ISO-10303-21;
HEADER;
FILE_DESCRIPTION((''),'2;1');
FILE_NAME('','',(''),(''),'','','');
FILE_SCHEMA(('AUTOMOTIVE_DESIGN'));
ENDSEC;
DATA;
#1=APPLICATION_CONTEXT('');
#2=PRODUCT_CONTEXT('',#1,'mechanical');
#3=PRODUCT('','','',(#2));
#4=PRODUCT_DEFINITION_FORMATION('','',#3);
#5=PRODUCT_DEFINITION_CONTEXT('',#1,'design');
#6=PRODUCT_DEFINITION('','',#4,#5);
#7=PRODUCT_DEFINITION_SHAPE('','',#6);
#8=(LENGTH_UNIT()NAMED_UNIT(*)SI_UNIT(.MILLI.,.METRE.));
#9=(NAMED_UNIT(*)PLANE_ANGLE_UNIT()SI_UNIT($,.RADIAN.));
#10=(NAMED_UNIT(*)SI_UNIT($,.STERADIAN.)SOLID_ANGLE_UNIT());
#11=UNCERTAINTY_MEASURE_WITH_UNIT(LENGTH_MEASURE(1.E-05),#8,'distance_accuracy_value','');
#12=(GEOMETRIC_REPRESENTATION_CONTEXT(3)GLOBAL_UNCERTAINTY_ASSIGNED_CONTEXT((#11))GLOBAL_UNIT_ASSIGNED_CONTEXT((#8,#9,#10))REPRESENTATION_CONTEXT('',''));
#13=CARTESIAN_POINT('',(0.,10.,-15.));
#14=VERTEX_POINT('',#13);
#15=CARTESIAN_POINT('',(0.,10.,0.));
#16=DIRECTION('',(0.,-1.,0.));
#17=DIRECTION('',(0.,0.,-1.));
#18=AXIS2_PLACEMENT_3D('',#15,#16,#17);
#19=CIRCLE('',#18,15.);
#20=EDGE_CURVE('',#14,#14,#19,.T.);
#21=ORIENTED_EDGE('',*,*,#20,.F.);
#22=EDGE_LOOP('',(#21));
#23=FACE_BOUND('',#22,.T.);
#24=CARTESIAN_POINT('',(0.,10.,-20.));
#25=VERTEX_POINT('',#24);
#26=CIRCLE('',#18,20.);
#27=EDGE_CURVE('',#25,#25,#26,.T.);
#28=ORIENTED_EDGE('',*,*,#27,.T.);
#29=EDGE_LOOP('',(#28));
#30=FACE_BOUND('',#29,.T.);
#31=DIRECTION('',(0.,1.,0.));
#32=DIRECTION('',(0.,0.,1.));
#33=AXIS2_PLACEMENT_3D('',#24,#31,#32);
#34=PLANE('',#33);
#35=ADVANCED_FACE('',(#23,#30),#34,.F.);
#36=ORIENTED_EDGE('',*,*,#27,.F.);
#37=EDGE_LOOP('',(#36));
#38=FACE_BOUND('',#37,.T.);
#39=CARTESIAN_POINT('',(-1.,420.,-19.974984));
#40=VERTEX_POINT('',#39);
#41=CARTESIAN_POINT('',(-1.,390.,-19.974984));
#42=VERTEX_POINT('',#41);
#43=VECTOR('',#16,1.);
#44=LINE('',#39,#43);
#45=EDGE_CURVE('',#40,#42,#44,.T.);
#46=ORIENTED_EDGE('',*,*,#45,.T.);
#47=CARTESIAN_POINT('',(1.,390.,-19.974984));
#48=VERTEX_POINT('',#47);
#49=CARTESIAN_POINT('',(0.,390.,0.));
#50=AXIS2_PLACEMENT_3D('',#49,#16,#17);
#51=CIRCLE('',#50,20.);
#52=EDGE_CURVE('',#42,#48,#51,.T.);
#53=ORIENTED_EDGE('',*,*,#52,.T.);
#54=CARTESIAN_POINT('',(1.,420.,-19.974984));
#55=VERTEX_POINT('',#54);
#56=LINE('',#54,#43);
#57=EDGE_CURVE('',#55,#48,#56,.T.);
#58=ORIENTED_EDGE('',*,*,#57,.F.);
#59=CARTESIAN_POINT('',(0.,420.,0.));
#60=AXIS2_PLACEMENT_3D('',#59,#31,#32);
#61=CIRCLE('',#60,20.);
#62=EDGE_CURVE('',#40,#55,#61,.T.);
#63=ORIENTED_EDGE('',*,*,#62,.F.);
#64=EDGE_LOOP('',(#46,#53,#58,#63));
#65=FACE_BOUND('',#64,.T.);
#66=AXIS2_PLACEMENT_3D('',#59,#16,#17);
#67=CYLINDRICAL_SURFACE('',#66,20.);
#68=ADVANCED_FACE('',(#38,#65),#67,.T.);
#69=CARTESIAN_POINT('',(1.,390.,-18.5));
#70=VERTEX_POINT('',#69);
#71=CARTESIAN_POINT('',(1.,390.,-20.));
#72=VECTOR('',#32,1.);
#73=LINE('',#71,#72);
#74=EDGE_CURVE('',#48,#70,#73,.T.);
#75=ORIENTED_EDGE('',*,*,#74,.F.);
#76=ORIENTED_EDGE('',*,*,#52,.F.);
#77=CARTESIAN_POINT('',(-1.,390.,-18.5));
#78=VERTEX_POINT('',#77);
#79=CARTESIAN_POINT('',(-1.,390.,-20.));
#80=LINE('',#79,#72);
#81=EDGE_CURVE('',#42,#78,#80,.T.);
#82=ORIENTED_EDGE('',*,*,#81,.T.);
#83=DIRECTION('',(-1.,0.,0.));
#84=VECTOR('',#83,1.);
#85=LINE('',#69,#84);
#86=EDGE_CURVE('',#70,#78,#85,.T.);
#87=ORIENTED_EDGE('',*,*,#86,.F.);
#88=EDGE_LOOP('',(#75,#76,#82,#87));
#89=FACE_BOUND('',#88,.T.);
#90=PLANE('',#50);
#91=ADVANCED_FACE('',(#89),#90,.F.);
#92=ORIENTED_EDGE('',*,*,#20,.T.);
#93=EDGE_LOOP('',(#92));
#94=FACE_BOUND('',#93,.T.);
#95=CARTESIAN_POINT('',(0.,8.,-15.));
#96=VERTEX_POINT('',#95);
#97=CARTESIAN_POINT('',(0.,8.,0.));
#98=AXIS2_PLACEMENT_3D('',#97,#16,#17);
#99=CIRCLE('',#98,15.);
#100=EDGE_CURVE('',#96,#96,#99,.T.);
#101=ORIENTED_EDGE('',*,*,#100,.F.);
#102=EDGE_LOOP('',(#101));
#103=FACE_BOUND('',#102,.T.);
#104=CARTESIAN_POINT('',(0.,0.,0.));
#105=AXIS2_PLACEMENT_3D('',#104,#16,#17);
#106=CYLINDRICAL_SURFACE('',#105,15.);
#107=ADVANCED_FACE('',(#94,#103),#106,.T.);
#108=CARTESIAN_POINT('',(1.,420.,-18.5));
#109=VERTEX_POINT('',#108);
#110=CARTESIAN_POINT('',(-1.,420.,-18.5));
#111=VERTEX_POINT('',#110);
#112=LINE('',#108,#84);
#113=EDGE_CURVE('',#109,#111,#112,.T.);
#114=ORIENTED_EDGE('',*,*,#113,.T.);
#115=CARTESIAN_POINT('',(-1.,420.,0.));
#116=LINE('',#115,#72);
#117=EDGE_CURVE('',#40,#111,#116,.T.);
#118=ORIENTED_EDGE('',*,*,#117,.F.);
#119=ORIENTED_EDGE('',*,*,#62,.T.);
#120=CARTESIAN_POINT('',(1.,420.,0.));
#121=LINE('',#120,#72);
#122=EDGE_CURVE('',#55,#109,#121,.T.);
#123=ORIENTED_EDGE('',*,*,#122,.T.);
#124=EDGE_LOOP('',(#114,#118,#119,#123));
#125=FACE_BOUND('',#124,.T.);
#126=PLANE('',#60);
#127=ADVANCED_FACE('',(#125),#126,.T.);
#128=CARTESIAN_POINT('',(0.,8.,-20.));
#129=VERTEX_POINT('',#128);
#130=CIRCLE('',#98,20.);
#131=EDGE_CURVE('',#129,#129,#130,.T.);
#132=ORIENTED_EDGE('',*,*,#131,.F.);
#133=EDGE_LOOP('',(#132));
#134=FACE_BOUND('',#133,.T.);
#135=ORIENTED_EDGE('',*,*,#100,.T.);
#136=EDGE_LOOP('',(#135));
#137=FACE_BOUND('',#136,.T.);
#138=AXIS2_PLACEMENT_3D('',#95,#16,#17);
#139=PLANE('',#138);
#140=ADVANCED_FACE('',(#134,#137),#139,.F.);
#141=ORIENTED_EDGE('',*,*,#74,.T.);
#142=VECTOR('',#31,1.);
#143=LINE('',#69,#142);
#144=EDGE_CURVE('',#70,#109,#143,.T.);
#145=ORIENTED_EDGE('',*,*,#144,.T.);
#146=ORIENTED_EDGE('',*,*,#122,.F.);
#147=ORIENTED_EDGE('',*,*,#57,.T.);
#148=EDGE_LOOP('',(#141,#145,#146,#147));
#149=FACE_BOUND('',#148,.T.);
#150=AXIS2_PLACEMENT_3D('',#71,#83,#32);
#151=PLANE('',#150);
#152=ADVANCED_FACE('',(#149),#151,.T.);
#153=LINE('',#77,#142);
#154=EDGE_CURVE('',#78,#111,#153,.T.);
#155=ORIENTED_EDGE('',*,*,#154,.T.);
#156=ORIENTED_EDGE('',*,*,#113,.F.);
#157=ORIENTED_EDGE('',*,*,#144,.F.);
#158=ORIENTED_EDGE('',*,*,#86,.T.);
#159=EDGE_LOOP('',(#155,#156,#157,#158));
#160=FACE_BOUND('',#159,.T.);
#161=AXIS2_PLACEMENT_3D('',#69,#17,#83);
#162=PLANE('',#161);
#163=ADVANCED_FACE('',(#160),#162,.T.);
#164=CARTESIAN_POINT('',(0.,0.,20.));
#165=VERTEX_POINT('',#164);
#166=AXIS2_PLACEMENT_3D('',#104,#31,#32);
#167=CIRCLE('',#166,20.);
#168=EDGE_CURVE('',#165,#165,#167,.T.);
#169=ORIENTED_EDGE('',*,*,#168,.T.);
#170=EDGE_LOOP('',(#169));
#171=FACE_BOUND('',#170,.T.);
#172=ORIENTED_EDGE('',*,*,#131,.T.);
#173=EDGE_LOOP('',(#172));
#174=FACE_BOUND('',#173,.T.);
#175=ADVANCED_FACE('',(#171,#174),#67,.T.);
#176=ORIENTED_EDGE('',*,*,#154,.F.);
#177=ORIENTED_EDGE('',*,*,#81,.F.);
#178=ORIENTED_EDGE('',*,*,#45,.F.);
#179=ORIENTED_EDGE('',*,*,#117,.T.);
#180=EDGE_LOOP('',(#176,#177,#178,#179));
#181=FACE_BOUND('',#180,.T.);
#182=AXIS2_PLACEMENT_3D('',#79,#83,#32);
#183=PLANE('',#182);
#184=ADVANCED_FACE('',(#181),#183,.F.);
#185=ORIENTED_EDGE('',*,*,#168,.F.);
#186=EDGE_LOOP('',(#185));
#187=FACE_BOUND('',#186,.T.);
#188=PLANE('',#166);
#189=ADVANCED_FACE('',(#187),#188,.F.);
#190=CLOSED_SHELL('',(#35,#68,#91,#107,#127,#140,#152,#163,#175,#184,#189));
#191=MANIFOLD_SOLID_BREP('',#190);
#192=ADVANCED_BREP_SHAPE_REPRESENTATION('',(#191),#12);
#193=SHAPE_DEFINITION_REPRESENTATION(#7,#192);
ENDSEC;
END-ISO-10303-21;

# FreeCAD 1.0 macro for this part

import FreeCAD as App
import Part
import Sketcher
Q = App.Units.Quantity

doc = App.newDocument("Part")
body = doc.addObject("PartDesign::Body", "Body")

# Sketch on XZ plane
sketch1 = body.newObject("Sketcher::SketchObject", "Sketch")
sketch1.AttachmentSupport = (doc.getObject("XZ_Plane"), [""])
sketch1.MapMode = "FlatFace"
sketch1.addGeometry(Part.Circle(App.Vector(0, 0, 0), App.Vector(0, 0, 1), 20), False)
sketch1.addConstraint([
    Sketcher.Constraint("Coincident", 0, 3, -1, 1),
    Sketcher.Constraint("Diameter", 0, Q("40 mm")),
])
pad1 = body.newObject("PartDesign::Pad", "Pad")
pad1.Profile = sketch1
pad1.Length = 420
pad1.Reversed = True

# Sketch on YZ plane
sketch2 = body.newObject("Sketcher::SketchObject", "Sketch001")
sketch2.AttachmentSupport = (doc.getObject("YZ_Plane"), [""])
sketch2.MapMode = "FlatFace"
sketch2.addGeometry([
    Part.LineSegment(App.Vector(10, -15, 0), App.Vector(8, -15, 0)),
    Part.LineSegment(App.Vector(8, -15, 0), App.Vector(8, -20, 0)),
    Part.LineSegment(App.Vector(8, -20, 0), App.Vector(10, -20, 0)),
    Part.LineSegment(App.Vector(10, -20, 0), App.Vector(10, -15, 0)),
], False)
sketch2.addConstraint([
    Sketcher.Constraint("Coincident", 0, 2, 1, 1),
    Sketcher.Constraint("Coincident", 1, 2, 2, 1),
    Sketcher.Constraint("Coincident", 2, 2, 3, 1),
    Sketcher.Constraint("Coincident", 3, 2, 0, 1),
    Sketcher.Constraint("Horizontal", 0),
    Sketcher.Constraint("Vertical", 1),
    Sketcher.Constraint("Horizontal", 2),
    Sketcher.Constraint("Vertical", 3),
    Sketcher.Constraint("DistanceX", 0, 2, 0, 1, Q("2 mm")),
    Sketcher.Constraint("DistanceY", 1, 2, 1, 1, Q("5 mm")),
    Sketcher.Constraint("DistanceX", -1, 1, 0, 2, Q("8 mm")),
    Sketcher.Constraint("DistanceY", 0, 2, -1, 1, Q("15 mm")),
])
groove = body.newObject("PartDesign::Groove", "Groove")
groove.Profile = sketch2
groove.ReferenceAxis = (sketch2, ["H_Axis"])
groove.Angle = 360

# Sketch on XZ plane
sketch3 = body.newObject("Sketcher::SketchObject", "Sketch002")
sketch3.AttachmentSupport = (doc.getObject("XZ_Plane"), [""])
sketch3.MapMode = "FlatFace"
sketch3.AttachmentOffset = App.Placement(App.Vector(0, 0, -420), App.Rotation())
sketch3.addGeometry([
    Part.LineSegment(App.Vector(-1, -20, 0), App.Vector(-1, -18.5, 0)),
    Part.LineSegment(App.Vector(-1, -18.5, 0), App.Vector(1, -18.5, 0)),
    Part.LineSegment(App.Vector(1, -18.5, 0), App.Vector(1, -20, 0)),
    Part.LineSegment(App.Vector(1, -20, 0), App.Vector(-1, -20, 0)),
], False)
sketch3.addConstraint([
    Sketcher.Constraint("Coincident", 0, 2, 1, 1),
    Sketcher.Constraint("Coincident", 1, 2, 2, 1),
    Sketcher.Constraint("Coincident", 2, 2, 3, 1),
    Sketcher.Constraint("Coincident", 3, 2, 0, 1),
    Sketcher.Constraint("Vertical", 0),
    Sketcher.Constraint("Horizontal", 1),
    Sketcher.Constraint("Vertical", 2),
    Sketcher.Constraint("Horizontal", 3),
    Sketcher.Constraint("DistanceX", 1, 1, 1, 2, Q("2 mm")),
    Sketcher.Constraint("DistanceY", 0, 1, 0, 2, Q("1.5 mm")),
    Sketcher.Constraint("DistanceX", 0, 2, -1, 1, Q("1 mm")),
    Sketcher.Constraint("DistanceY", 2, 2, -1, 1, Q("20 mm")),
])
pocket1 = body.newObject("PartDesign::Pocket", "Pocket")
pocket1.Profile = sketch3
pocket1.Length = 30
pocket1.Reversed = True

doc.recompute()
